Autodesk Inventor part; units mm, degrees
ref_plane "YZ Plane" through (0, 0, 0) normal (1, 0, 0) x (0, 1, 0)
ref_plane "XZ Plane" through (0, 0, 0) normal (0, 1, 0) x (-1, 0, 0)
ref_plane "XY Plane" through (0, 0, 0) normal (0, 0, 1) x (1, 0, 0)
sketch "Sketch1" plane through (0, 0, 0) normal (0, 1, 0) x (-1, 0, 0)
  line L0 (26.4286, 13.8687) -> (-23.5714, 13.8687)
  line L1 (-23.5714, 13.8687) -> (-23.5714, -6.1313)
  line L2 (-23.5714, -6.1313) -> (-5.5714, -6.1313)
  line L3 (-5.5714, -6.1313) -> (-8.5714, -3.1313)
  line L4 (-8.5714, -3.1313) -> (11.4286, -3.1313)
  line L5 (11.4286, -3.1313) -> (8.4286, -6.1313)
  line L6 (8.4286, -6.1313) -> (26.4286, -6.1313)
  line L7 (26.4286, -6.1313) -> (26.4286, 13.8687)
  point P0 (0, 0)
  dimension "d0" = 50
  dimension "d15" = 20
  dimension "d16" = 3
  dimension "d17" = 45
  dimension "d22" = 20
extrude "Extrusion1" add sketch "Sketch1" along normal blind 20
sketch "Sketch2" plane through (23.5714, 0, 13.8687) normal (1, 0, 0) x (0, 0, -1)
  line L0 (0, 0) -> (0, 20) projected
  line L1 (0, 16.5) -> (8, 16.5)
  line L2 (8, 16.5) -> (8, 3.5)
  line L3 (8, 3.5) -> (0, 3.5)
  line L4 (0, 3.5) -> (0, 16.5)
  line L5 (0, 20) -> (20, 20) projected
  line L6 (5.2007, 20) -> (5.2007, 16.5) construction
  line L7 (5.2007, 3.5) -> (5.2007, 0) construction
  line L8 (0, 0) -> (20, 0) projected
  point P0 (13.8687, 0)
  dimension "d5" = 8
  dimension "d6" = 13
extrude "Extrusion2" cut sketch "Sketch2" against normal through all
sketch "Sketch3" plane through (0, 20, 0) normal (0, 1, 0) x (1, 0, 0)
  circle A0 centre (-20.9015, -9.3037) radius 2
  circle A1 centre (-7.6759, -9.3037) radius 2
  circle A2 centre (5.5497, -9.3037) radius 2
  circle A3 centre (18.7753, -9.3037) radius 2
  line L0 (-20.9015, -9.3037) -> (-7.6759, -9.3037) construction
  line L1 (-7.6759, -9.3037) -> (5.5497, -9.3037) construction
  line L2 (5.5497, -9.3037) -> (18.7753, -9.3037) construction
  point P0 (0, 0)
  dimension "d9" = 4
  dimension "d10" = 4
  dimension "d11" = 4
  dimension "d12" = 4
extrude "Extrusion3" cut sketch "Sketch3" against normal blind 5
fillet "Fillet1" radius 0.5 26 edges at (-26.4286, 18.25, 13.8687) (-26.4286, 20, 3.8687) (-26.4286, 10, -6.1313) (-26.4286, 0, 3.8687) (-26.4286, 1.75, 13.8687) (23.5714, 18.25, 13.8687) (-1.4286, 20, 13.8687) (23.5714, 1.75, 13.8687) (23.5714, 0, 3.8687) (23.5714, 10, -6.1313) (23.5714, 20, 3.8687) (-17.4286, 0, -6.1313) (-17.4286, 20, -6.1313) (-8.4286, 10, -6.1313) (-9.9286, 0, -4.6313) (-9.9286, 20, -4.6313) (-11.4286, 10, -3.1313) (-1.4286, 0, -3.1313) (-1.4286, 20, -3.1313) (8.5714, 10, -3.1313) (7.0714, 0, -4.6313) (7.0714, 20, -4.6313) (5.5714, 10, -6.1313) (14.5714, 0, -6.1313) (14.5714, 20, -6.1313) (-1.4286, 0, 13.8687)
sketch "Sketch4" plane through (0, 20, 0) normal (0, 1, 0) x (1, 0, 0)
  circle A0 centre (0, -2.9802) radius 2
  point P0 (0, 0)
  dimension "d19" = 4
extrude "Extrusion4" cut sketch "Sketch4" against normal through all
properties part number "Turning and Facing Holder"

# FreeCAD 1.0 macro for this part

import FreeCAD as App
import Part
import Sketcher

V = App.Vector
Q = App.Units.Quantity


def edges_at(feature, points):
    """Names of the edges that pass closest to the given points."""
    edges = feature.Shape.Edges
    near = lambda p: min(range(len(edges)), key=lambda i: edges[i].distToShape(Part.Vertex(*p))[0])
    return sorted({f"Edge{near(p) + 1}" for p in points})


def add_polygon(sketch, points):
    """Adds a closed chain of lines whose ends are joined by coincident constraints."""
    first, n = sketch.GeometryCount, len(points)
    for a, b in zip(points, points[1:] + points[:1]):
        sketch.addGeometry(Part.LineSegment(App.Vector(*a, 0), App.Vector(*b, 0)), False)
    for i in range(n):
        sketch.addConstraint(Sketcher.Constraint("Coincident", first + i, 2, first + (i + 1) % n, 1))

doc = App.newDocument("Part")
body = doc.addObject("PartDesign::Body", "Body")

# Sketch on XZ plane
sketch1 = body.newObject("Sketcher::SketchObject", "Sketch")
sketch1.AttachmentSupport = (doc.getObject("XZ_Plane"), [""])
sketch1.MapMode = "FlatFace"
add_polygon(sketch1, [(-26.4, -6.1), (-26.4, 13.9), (23.6, 13.9), (23.6, -6.1), (5.6, -6.1), (8.6, -3.1), (-11.4, -3.1), (-8.4, -6.1)])  # lines 0-7
sketch1.addConstraint([
    Sketcher.Constraint("Vertical", 0),
    Sketcher.Constraint("Horizontal", 1),
    Sketcher.Constraint("Vertical", 2),
    Sketcher.Constraint("Horizontal", 3),
    Sketcher.Constraint("Horizontal", 5),
    Sketcher.Constraint("Horizontal", 7),
    Sketcher.Constraint("Perpendicular", 4, 6),
    Sketcher.Constraint("Horizontal", 3, 2, 6, 2),
    Sketcher.Constraint("Equal", 3, 7),
    Sketcher.Constraint("Equal", 5, 0),
    Sketcher.Constraint("Equal", 4, 6),
    Sketcher.Constraint("DistanceX", 1, 1, 1, 2, Q("50 mm")),
    Sketcher.Constraint("DistanceX", 5, 2, 5, 1, Q("20 mm")),
    Sketcher.Constraint("DistanceX", 3, 2, 4, 2, Q("3 mm")),
    Sketcher.Constraint("DistanceX", 0, 2, -1, 1, Q("26.4286 mm")),
    Sketcher.Constraint("DistanceY", -1, 1, 0, 2, Q("13.8687 mm")),
])
pad1 = body.newObject("PartDesign::Pad", "Pad")
pad1.Profile = sketch1
pad1.Length = 20
pad1.Reversed = True

# Sketch on YZ plane
sketch2 = body.newObject("Sketcher::SketchObject", "Sketch001")
sketch2.AttachmentSupport = (doc.getObject("YZ_Plane"), [""])
sketch2.MapMode = "FlatFace"
sketch2.AttachmentOffset = App.Placement(V(0, 0, 23.5714), App.Rotation())
add_polygon(sketch2, [(16, 14), (4, 14), (4, 6), (16, 6)])  # lines 0-3
sketch2.addConstraint([
    Sketcher.Constraint("Horizontal", 0),
    Sketcher.Constraint("Vertical", 1),
    Sketcher.Constraint("Horizontal", 2),
    Sketcher.Constraint("Vertical", 3),
    Sketcher.Constraint("DistanceX", 0, 2, 0, 1, Q("13 mm")),
    Sketcher.Constraint("DistanceY", 1, 2, 1, 1, Q("8 mm")),
    Sketcher.Constraint("DistanceX", -1, 1, 0, 2, Q("3.5 mm")),
    Sketcher.Constraint("DistanceY", -1, 1, 0, 2, Q("13.8687 mm")),
])
pocket1 = body.newObject("PartDesign::Pocket", "Pocket")
pocket1.Profile = sketch2
pocket1.Type = "ThroughAll"

# Sketch on XZ plane
sketch3 = body.newObject("Sketcher::SketchObject", "Sketch002")
sketch3.AttachmentSupport = (doc.getObject("XZ_Plane"), [""])
sketch3.MapMode = "FlatFace"
sketch3.AttachmentOffset = App.Placement(V(0, 0, -20), App.Rotation())
sketch3.addGeometry([
    Part.Circle(V(-20.9, 9.3, 0), V(0, 0, 1), 2),
    Part.Circle(V(-7.7, 9.3, 0), V(0, 0, 1), 2),
    Part.Circle(V(5.5, 9.3, 0), V(0, 0, 1), 2),
    Part.Circle(V(18.8, 9.3, 0), V(0, 0, 1), 2),
], False)
sketch3.addConstraint([
    Sketcher.Constraint("Equal", 0, 1),
    Sketcher.Constraint("Equal", 1, 2),
    Sketcher.Constraint("Equal", 2, 3),
    Sketcher.Constraint("Horizontal", 0, 3, 1, 3),
    Sketcher.Constraint("Horizontal", 1, 3, 2, 3),
    Sketcher.Constraint("Horizontal", 2, 3, 3, 3),
    Sketcher.Constraint("Diameter", 0, Q("4 mm")),
    Sketcher.Constraint("DistanceX", 1, 3, -1, 1, Q("7.676 mm")),
    Sketcher.Constraint("DistanceX", 0, 3, -1, 1, Q("20.9015 mm")),
    Sketcher.Constraint("DistanceY", -1, 1, 0, 3, Q("9.3037 mm")),
    Sketcher.Constraint("DistanceX", -1, 1, 2, 3, Q("5.5497 mm")),
    Sketcher.Constraint("DistanceX", -1, 1, 3, 3, Q("18.7753 mm")),
])
pocket2 = body.newObject("PartDesign::Pocket", "Pocket001")
pocket2.Profile = sketch3
pocket2.Length = 5
pocket2.Reversed = True
doc.recompute()

fillet = body.newObject("PartDesign::Fillet", "Fillet")
fillet.Base = (pocket2, edges_at(pocket2, [
    (-26.429, 18.25, 13.869),
    (-26.429, 20, 3.869),
    (-26.429, 10, -6.131),
    (-26.429, 0, 3.869),
    (-26.429, 1.75, 13.869),
    (23.571, 18.25, 13.869),
    (-1.429, 20, 13.869),
    (23.571, 1.75, 13.869),
    (23.571, 0, 3.869),
    (23.571, 10, -6.131),
    (23.571, 20, 3.869),
    (-17.429, 0, -6.131),
    (-17.429, 20, -6.131),
    (-8.429, 10, -6.131),
    (-9.929, 0, -4.631),
    (-9.929, 20, -4.631),
    (-11.429, 10, -3.131),
    (-1.429, 0, -3.131),
    (-1.429, 20, -3.131),
    (8.571, 10, -3.131),
    (7.071, 0, -4.631),
    (7.071, 20, -4.631),
    (5.571, 10, -6.131),
    (14.571, 0, -6.131),
    (14.571, 20, -6.131),
    (-1.429, 0, 13.869),
]))
fillet.Radius = 0.5

# Sketch on XZ plane
sketch4 = body.newObject("Sketcher::SketchObject", "Sketch003")
sketch4.AttachmentSupport = (doc.getObject("XZ_Plane"), [""])
sketch4.MapMode = "FlatFace"
sketch4.AttachmentOffset = App.Placement(V(0, 0, -20), App.Rotation())
sketch4.addGeometry(Part.Circle(V(0, 3, 0), V(0, 0, 1), 2), False)
sketch4.addConstraint([
    Sketcher.Constraint("PointOnObject", 0, 3, -2),
    Sketcher.Constraint("Diameter", 0, Q("4 mm")),
    Sketcher.Constraint("DistanceY", -1, 1, 0, 3, Q("2.9802 mm")),
])
pocket3 = body.newObject("PartDesign::Pocket", "Pocket002")
pocket3.Profile = sketch4
pocket3.Type = "ThroughAll"
pocket3.Reversed = True

doc.recompute()
